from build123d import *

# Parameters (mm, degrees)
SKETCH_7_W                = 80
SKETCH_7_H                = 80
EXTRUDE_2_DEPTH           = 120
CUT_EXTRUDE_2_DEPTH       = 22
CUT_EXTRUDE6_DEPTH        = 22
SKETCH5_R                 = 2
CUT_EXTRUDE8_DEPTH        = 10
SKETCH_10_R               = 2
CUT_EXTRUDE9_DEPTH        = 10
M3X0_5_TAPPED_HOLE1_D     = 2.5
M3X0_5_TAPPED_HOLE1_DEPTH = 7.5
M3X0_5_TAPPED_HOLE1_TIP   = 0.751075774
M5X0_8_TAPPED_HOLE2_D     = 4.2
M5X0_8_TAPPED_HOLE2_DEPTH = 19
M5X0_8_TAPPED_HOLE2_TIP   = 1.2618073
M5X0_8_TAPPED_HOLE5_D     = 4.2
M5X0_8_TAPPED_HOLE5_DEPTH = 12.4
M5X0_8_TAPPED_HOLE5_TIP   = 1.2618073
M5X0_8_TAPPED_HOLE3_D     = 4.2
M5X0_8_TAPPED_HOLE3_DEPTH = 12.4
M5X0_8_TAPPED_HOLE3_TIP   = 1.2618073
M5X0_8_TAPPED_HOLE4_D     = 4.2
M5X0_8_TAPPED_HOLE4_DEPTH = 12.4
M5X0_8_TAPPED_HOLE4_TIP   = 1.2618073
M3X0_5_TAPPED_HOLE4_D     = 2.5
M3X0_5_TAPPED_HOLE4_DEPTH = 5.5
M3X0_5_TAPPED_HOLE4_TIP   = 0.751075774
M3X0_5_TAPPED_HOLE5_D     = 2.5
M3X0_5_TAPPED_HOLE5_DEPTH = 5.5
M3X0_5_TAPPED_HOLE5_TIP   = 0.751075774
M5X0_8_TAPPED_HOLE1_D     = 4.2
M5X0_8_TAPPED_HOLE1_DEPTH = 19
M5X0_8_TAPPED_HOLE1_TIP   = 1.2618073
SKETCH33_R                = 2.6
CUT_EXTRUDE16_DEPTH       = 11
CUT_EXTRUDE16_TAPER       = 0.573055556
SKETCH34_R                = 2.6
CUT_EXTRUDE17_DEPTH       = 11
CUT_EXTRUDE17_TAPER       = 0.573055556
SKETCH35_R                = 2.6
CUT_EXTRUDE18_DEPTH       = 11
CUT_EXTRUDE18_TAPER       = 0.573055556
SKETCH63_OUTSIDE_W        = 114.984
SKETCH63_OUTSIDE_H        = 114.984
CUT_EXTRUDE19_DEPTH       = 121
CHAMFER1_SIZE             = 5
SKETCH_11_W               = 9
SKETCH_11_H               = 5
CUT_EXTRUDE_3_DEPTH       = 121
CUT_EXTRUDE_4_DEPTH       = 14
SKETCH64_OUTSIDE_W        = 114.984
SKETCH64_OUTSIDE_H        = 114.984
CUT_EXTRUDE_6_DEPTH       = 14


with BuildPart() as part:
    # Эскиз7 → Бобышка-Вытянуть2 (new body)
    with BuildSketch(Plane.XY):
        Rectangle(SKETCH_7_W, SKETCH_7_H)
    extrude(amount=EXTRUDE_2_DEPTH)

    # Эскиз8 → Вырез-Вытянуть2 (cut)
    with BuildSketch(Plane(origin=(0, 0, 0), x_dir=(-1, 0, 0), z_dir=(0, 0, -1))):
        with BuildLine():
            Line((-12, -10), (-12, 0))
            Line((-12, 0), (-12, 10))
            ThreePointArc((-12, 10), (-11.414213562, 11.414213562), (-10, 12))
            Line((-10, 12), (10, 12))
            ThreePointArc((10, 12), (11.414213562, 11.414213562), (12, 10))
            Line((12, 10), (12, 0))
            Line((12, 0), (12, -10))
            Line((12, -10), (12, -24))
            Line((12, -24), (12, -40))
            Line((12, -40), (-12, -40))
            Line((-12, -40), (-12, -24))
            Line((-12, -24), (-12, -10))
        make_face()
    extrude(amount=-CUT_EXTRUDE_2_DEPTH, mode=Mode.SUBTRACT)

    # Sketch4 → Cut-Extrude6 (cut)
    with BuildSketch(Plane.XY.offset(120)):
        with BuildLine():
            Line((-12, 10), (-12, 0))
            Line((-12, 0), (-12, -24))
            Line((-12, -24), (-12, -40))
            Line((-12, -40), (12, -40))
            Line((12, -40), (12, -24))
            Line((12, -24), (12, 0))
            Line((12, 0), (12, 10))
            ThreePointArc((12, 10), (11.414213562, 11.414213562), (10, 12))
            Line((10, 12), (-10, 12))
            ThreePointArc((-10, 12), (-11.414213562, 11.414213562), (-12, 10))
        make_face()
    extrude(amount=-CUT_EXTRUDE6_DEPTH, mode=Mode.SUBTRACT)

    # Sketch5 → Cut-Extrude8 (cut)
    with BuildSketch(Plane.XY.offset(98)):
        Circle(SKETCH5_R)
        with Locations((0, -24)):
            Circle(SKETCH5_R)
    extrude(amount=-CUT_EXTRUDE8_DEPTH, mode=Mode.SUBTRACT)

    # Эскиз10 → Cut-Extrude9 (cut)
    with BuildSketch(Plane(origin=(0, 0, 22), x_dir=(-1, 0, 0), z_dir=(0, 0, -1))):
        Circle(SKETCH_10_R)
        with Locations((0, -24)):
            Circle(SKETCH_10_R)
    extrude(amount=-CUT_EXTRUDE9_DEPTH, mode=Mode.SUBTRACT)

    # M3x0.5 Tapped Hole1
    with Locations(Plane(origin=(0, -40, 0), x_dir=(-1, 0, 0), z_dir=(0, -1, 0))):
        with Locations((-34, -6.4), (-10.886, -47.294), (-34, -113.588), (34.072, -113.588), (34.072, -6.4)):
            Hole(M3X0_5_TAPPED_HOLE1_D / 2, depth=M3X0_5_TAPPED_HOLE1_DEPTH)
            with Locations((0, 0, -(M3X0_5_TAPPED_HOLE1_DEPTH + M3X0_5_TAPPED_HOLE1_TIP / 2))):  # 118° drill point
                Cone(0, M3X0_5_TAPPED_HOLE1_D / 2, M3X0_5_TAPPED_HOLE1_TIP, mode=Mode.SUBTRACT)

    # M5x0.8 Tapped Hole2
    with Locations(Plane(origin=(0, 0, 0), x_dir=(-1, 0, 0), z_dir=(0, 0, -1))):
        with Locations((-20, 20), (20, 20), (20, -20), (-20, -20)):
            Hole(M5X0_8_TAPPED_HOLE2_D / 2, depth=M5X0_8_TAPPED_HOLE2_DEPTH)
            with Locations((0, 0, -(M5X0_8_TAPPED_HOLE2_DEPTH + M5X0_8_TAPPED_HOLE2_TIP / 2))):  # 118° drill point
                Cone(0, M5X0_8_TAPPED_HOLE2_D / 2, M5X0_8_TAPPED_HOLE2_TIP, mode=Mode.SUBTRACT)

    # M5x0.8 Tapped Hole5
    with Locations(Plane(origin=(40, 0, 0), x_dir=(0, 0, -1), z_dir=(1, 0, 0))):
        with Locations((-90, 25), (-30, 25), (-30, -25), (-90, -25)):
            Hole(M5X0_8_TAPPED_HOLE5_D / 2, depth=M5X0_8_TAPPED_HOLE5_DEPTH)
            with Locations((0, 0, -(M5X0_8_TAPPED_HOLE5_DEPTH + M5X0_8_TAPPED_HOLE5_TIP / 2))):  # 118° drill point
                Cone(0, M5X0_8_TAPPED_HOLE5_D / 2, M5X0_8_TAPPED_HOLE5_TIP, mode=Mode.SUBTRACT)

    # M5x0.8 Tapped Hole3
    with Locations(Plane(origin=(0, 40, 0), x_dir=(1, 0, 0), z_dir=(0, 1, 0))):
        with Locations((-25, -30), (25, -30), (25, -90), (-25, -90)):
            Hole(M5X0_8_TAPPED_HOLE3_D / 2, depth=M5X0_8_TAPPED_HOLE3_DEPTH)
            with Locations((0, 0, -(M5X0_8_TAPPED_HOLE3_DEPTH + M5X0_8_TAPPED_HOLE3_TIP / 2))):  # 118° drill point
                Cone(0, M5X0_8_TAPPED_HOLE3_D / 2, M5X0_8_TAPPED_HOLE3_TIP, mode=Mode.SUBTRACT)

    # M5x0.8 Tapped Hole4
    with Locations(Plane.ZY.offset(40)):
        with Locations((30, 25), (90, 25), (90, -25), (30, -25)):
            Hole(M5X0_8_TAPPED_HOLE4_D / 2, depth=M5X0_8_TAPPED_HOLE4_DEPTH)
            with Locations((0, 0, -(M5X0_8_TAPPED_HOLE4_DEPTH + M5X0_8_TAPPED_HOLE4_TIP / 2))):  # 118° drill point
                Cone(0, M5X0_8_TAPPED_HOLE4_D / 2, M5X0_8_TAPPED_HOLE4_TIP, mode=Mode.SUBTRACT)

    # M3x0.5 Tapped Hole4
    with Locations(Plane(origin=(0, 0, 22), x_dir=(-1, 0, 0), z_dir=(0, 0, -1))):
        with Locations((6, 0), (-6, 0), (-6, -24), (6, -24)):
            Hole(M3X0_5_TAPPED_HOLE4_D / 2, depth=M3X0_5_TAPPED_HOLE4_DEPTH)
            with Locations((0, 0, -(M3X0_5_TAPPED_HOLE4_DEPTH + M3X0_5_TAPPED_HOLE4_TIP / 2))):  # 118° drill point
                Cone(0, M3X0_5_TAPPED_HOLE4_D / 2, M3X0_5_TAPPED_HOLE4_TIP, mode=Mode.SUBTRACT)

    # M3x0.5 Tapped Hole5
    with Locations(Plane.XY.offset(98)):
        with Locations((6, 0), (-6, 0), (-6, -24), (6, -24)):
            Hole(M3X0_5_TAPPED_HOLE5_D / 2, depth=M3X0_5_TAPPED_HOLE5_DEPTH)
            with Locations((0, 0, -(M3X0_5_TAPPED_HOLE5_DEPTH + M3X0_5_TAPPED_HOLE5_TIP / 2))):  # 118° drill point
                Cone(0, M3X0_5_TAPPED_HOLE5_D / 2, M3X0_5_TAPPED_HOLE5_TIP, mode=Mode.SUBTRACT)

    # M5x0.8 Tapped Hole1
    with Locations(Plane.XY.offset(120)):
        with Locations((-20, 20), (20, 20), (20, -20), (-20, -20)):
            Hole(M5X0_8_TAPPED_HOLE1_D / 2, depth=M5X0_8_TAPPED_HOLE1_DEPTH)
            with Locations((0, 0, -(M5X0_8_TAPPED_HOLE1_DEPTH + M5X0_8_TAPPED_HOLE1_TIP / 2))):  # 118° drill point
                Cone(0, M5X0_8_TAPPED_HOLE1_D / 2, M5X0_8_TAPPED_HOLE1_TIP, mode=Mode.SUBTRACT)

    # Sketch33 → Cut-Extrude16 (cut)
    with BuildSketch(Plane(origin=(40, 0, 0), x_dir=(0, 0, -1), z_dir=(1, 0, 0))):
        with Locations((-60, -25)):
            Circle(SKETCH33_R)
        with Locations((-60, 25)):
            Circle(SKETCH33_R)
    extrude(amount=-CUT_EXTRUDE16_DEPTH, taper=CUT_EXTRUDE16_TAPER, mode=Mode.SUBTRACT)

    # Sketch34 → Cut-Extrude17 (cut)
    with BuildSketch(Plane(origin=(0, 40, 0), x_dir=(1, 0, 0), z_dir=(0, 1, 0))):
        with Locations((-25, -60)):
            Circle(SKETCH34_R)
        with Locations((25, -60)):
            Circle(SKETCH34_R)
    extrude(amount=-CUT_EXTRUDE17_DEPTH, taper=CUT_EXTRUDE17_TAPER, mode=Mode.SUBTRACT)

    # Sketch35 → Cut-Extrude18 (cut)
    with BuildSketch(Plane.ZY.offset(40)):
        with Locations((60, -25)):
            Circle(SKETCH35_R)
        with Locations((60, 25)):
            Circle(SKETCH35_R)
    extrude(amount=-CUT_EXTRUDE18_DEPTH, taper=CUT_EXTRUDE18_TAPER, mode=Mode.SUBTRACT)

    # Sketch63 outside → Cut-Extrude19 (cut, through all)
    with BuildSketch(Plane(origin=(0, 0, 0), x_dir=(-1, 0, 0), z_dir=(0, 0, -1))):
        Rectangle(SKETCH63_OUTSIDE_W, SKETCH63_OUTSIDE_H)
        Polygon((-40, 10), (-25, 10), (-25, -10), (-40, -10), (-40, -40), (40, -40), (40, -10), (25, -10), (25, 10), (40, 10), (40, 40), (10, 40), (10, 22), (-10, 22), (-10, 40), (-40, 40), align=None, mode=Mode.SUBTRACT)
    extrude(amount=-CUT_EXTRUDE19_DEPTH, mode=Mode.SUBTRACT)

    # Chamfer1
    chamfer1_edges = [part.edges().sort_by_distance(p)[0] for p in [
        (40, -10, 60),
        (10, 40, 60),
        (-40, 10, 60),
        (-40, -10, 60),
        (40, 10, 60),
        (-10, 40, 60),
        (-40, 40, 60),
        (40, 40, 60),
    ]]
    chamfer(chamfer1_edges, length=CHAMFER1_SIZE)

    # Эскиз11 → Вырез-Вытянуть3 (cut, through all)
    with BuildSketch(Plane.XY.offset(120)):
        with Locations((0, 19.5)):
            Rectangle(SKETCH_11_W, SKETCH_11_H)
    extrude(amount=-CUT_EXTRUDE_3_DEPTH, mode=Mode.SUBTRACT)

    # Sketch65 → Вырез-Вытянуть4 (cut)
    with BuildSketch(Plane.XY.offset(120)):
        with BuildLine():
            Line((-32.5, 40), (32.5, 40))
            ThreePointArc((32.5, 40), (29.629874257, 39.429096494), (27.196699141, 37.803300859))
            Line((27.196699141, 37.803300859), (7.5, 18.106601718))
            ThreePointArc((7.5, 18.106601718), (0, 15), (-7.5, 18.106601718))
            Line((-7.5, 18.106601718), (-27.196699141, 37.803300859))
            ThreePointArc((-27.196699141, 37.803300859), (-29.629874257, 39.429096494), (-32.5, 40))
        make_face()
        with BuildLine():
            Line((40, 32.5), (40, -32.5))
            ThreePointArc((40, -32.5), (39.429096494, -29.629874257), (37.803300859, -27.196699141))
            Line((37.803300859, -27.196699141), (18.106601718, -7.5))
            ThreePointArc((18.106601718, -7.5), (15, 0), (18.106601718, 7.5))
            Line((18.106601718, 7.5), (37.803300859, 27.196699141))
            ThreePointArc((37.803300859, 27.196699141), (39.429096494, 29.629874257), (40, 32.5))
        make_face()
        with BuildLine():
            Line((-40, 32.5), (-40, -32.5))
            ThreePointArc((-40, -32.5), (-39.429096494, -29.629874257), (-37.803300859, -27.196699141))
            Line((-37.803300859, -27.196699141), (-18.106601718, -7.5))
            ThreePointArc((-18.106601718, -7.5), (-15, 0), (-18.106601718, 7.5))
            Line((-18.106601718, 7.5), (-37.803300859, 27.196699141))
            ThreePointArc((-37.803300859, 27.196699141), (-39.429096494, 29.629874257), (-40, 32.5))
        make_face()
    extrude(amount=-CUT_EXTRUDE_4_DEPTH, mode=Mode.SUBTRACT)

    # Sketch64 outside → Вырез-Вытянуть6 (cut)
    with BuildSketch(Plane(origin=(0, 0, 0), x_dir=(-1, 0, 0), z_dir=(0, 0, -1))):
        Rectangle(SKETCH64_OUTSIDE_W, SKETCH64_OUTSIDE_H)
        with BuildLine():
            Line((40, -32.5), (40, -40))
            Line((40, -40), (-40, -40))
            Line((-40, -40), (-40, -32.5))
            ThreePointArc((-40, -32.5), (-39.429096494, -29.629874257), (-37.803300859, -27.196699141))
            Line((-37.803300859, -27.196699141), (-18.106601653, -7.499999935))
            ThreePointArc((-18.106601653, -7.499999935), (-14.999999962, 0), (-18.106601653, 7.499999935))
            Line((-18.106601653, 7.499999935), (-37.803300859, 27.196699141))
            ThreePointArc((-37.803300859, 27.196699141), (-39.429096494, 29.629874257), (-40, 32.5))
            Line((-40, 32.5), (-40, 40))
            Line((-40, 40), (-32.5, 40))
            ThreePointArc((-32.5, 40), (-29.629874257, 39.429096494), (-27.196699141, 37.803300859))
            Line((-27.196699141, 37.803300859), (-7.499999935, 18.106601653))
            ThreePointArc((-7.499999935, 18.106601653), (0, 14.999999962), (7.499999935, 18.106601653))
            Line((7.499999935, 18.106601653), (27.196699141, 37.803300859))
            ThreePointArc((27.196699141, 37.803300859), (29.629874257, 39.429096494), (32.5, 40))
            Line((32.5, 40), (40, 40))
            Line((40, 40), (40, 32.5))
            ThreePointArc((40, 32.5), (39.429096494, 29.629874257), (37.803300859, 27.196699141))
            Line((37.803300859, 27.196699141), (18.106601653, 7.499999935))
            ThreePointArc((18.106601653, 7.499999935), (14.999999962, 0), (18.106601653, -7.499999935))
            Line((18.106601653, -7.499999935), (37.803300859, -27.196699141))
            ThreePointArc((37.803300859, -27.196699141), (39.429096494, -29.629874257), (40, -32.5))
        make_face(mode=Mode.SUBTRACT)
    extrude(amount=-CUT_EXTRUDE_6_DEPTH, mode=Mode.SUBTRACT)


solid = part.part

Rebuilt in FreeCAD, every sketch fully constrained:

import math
import FreeCAD as App
import Part
import Sketcher

V = App.Vector
Q = App.Units.Quantity


def edges_at(feature, points):
    """Names of the edges that pass closest to the given points."""
    edges = feature.Shape.Edges
    near = lambda p: min(range(len(edges)), key=lambda i: edges[i].distToShape(Part.Vertex(*p))[0])
    return sorted({f"Edge{near(p) + 1}" for p in points})


def add_polygon(sketch, points):
    """Adds a closed chain of lines whose ends are joined by coincident constraints."""
    first, n = sketch.GeometryCount, len(points)
    for a, b in zip(points, points[1:] + points[:1]):
        sketch.addGeometry(Part.LineSegment(App.Vector(*a, 0), App.Vector(*b, 0)), False)
    for i in range(n):
        sketch.addConstraint(Sketcher.Constraint("Coincident", first + i, 2, first + (i + 1) % n, 1))

doc = App.newDocument("Part")
body = doc.addObject("PartDesign::Body", "Body")

sketch1 = body.newObject("Sketcher::SketchObject", "Sketch")
sketch1.AttachmentSupport = (doc.getObject("XY_Plane"), [""])
sketch1.MapMode = "FlatFace"
add_polygon(sketch1, [(-40, 40), (-40, -40), (40, -40), (40, 40)])
sketch1.addConstraint([
    Sketcher.Constraint("Vertical", 0),
    Sketcher.Constraint("Horizontal", 1),
    Sketcher.Constraint("Vertical", 2),
    Sketcher.Constraint("Horizontal", 3),
    Sketcher.Constraint("Symmetric", 0, 2, 2, 2, -1, 1),
    Sketcher.Constraint("Equal", 3, 0),
    Sketcher.Constraint("DistanceX", 1, 1, 1, 2, Q("80 mm")),
])
pad1 = body.newObject("PartDesign::Pad", "Pad")
pad1.Profile = sketch1
pad1.Length = 120

sketch2 = body.newObject("Sketcher::SketchObject", "Sketch001")
sketch2.AttachmentSupport = (doc.getObject("XY_Plane"), [""])
sketch2.MapMode = "FlatFace"
sketch2.addGeometry([
    Part.ArcOfCircle(Part.Circle(V(10, 10, 0), V(0, 0, 1), 2), math.radians(0), math.radians(90)),
    Part.LineSegment(V(12, 10, 0), V(12, -40, 0)),
    Part.LineSegment(V(12, -40, 0), V(-12, -40, 0)),
    Part.LineSegment(V(-12, -40, 0), V(-12, 10, 0)),
    Part.ArcOfCircle(Part.Circle(V(-10, 10, 0), V(0, 0, 1), 2), math.radians(90), math.radians(180)),
    Part.LineSegment(V(-10, 12, 0), V(10, 12, 0)),
], False)
sketch2.addConstraint([
    Sketcher.Constraint("Tangent", 0, 1, 1, 1),
    Sketcher.Constraint("Coincident", 1, 2, 2, 1),
    Sketcher.Constraint("Coincident", 2, 2, 3, 1),
    Sketcher.Constraint("Tangent", 3, 2, 4, 2),
    Sketcher.Constraint("Tangent", 4, 1, 5, 1),
    Sketcher.Constraint("Tangent", 5, 2, 0, 2),
    Sketcher.Constraint("Vertical", 1),
    Sketcher.Constraint("Horizontal", 2),
    Sketcher.Constraint("Vertical", 3),
    Sketcher.Constraint("Horizontal", 5),
    Sketcher.Constraint("Equal", 0, 4),
    Sketcher.Constraint("Radius", 0, Q("2 mm")),
    Sketcher.Constraint("DistanceX", 2, 2, 2, 1, Q("24 mm")),
    Sketcher.Constraint("DistanceY", 1, 2, 1, 1, Q("50 mm")),
    Sketcher.Constraint("DistanceX", -1, 1, 0, 3, Q("10 mm")),
    Sketcher.Constraint("DistanceY", -1, 1, 0, 3, Q("10 mm")),
])
pocket1 = body.newObject("PartDesign::Pocket", "Pocket")
pocket1.Profile = sketch2
pocket1.Length = 22
pocket1.Reversed = True

sketch3 = body.newObject("Sketcher::SketchObject", "Sketch002")
sketch3.AttachmentSupport = (doc.getObject("XY_Plane"), [""])
sketch3.MapMode = "FlatFace"
sketch3.AttachmentOffset = App.Placement(V(0, 0, 120), App.Rotation())
sketch3.addGeometry([
    Part.LineSegment(V(-12, 10, 0), V(-12, -40, 0)),
    Part.LineSegment(V(-12, -40, 0), V(12, -40, 0)),
    Part.LineSegment(V(12, -40, 0), V(12, 10, 0)),
    Part.ArcOfCircle(Part.Circle(V(10, 10, 0), V(0, 0, 1), 2), math.radians(0), math.radians(90)),
    Part.LineSegment(V(10, 12, 0), V(-10, 12, 0)),
    Part.ArcOfCircle(Part.Circle(V(-10, 10, 0), V(0, 0, 1), 2), math.radians(90), math.radians(180)),
], False)
sketch3.addConstraint([
    Sketcher.Constraint("Coincident", 0, 2, 1, 1),
    Sketcher.Constraint("Coincident", 1, 2, 2, 1),
    Sketcher.Constraint("Tangent", 2, 2, 3, 1),
    Sketcher.Constraint("Tangent", 3, 2, 4, 1),
    Sketcher.Constraint("Tangent", 4, 2, 5, 1),
    Sketcher.Constraint("Tangent", 5, 2, 0, 1),
    Sketcher.Constraint("Vertical", 0),
    Sketcher.Constraint("Horizontal", 1),
    Sketcher.Constraint("Vertical", 2),
    Sketcher.Constraint("Horizontal", 4),
    Sketcher.Constraint("Equal", 3, 5),
    Sketcher.Constraint("Radius", 3, Q("2 mm")),
    Sketcher.Constraint("DistanceX", 1, 1, 1, 2, Q("24 mm")),
    Sketcher.Constraint("DistanceY", 0, 2, 0, 1, Q("50 mm")),
    Sketcher.Constraint("DistanceX", -1, 1, 3, 3, Q("10 mm")),
    Sketcher.Constraint("DistanceY", -1, 1, 3, 3, Q("10 mm")),
])
pocket2 = body.newObject("PartDesign::Pocket", "Pocket001")
pocket2.Profile = sketch3
pocket2.Length = 22

sketch4 = body.newObject("Sketcher::SketchObject", "Sketch003")
sketch4.AttachmentSupport = (doc.getObject("XY_Plane"), [""])
sketch4.MapMode = "FlatFace"
sketch4.AttachmentOffset = App.Placement(V(0, 0, 98), App.Rotation())
sketch4.addGeometry([
    Part.Circle(V(0, 0, 0), V(0, 0, 1), 2),
    Part.Circle(V(0, -24, 0), V(0, 0, 1), 2),
], False)
sketch4.addConstraint([
    Sketcher.Constraint("Coincident", 0, 3, -1, 1),
    Sketcher.Constraint("Equal", 0, 1),
    Sketcher.Constraint("PointOnObject", 1, 3, -2),
    Sketcher.Constraint("Diameter", 0, Q("4 mm")),
    Sketcher.Constraint("DistanceY", 1, 3, -1, 1, Q("24 mm")),
])
pocket3 = body.newObject("PartDesign::Pocket", "Pocket002")
pocket3.Profile = sketch4
pocket3.Length = 10

sketch5 = body.newObject("Sketcher::SketchObject", "Sketch004")
sketch5.AttachmentSupport = (doc.getObject("XY_Plane"), [""])
sketch5.MapMode = "FlatFace"
sketch5.AttachmentOffset = App.Placement(V(0, 0, 22), App.Rotation())
sketch5.addGeometry([
    Part.Circle(V(0, 0, 0), V(0, 0, 1), 2),
    Part.Circle(V(0, -24, 0), V(0, 0, 1), 2),
], False)
sketch5.addConstraint([
    Sketcher.Constraint("Coincident", 0, 3, -1, 1),
    Sketcher.Constraint("Equal", 0, 1),
    Sketcher.Constraint("PointOnObject", 1, 3, -2),
    Sketcher.Constraint("Diameter", 0, Q("4 mm")),
    Sketcher.Constraint("DistanceY", 1, 3, -1, 1, Q("24 mm")),
])
pocket4 = body.newObject("PartDesign::Pocket", "Pocket003")
pocket4.Profile = sketch5
pocket4.Length = 10
pocket4.Reversed = True

sketch6 = body.newObject("Sketcher::SketchObject", "Sketch005")
sketch6.AttachmentSupport = (doc.getObject("XZ_Plane"), [""])
sketch6.MapMode = "FlatFace"
sketch6.AttachmentOffset = App.Placement(V(0, 0, 40), App.Rotation())
sketch6.addGeometry([
    Part.Circle(V(34, 6.4, 0), V(0, 0, 1), 1.2),
    Part.Circle(V(10.9, 47.3, 0), V(0, 0, 1), 1.2),
    Part.Circle(V(34, 113.6, 0), V(0, 0, 1), 1.2),
    Part.Circle(V(-34.1, 113.6, 0), V(0, 0, 1), 1.2),
    Part.Circle(V(-34.1, 6.4, 0), V(0, 0, 1), 1.2),
], False)
sketch6.addConstraint([
    Sketcher.Constraint("Equal", 0, 1),
    Sketcher.Constraint("Equal", 1, 2),
    Sketcher.Constraint("Equal", 2, 3),
    Sketcher.Constraint("Equal", 3, 4),
    Sketcher.Constraint("Horizontal", 2, 3, 3, 3),
    Sketcher.Constraint("Horizontal", 0, 3, 4, 3),
    Sketcher.Constraint("Vertical", 0, 3, 2, 3),
    Sketcher.Constraint("Vertical", 3, 3, 4, 3),
    Sketcher.Constraint("Diameter", 0, Q("2.5 mm")),
    Sketcher.Constraint("DistanceX", -1, 1, 0, 3, Q("34 mm")),
    Sketcher.Constraint("DistanceY", -1, 1, 0, 3, Q("6.4 mm")),
    Sketcher.Constraint("DistanceX", -1, 1, 1, 3, Q("10.886 mm")),
    Sketcher.Constraint("DistanceY", -1, 1, 1, 3, Q("47.294 mm")),
    Sketcher.Constraint("DistanceY", -1, 1, 2, 3, Q("113.588 mm")),
    Sketcher.Constraint("DistanceX", 3, 3, -1, 1, Q("34.072 mm")),
])
doc.recompute()
hole = body.newObject("PartDesign::Hole", "Hole")
hole.Profile = sketch6
hole.ThreadType = "None"
hole.Diameter = 2.5
hole.DepthType = "Dimension"
hole.Depth = 7.5
hole.DrillPoint = "Angled"
hole.DrillPointAngle = 118

sketch7 = body.newObject("Sketcher::SketchObject", "Sketch006")
sketch7.AttachmentSupport = (doc.getObject("XY_Plane"), [""])
sketch7.MapMode = "FlatFace"
sketch7.addGeometry([
    Part.Circle(V(20, 20, 0), V(0, 0, 1), 2.1),
    Part.Circle(V(-20, 20, 0), V(0, 0, 1), 2.1),
    Part.Circle(V(-20, -20, 0), V(0, 0, 1), 2.1),
    Part.Circle(V(20, -20, 0), V(0, 0, 1), 2.1),
], False)
sketch7.addConstraint([
    Sketcher.Constraint("Equal", 0, 1),
    Sketcher.Constraint("Equal", 1, 2),
    Sketcher.Constraint("Equal", 2, 3),
    Sketcher.Constraint("Symmetric", 0, 3, 2, 3, -1, 1),
    Sketcher.Constraint("Symmetric", 1, 3, 3, 3, -1, 1),
    Sketcher.Constraint("Symmetric", 0, 3, 1, 3, -2),
    Sketcher.Constraint("Diameter", 0, Q("4.2 mm")),
    Sketcher.Constraint("DistanceX", -1, 1, 0, 3, Q("20 mm")),
    Sketcher.Constraint("DistanceY", -1, 1, 0, 3, Q("20 mm")),
])
doc.recompute()
hole2 = body.newObject("PartDesign::Hole", "Hole001")
hole2.Profile = sketch7
hole2.ThreadType = "None"
hole2.Diameter = 4.2
hole2.DepthType = "Dimension"
hole2.Depth = 19
hole2.DrillPoint = "Angled"
hole2.DrillPointAngle = 118
hole2.Reversed = True

sketch8 = body.newObject("Sketcher::SketchObject", "Sketch007")
sketch8.AttachmentSupport = (doc.getObject("YZ_Plane"), [""])
sketch8.MapMode = "FlatFace"
sketch8.AttachmentOffset = App.Placement(V(0, 0, 40), App.Rotation())
sketch8.addGeometry([
    Part.Circle(V(25, 90, 0), V(0, 0, 1), 2.1),
    Part.Circle(V(25, 30, 0), V(0, 0, 1), 2.1),
    Part.Circle(V(-25, 30, 0), V(0, 0, 1), 2.1),
    Part.Circle(V(-25, 90, 0), V(0, 0, 1), 2.1),
], False)
sketch8.addConstraint([
    Sketcher.Constraint("Equal", 0, 1),
    Sketcher.Constraint("Equal", 1, 2),
    Sketcher.Constraint("Equal", 2, 3),
    Sketcher.Constraint("Symmetric", 1, 3, 2, 3, -2),
    Sketcher.Constraint("Symmetric", 0, 3, 3, 3, -2),
    Sketcher.Constraint("Vertical", 0, 3, 1, 3),
    Sketcher.Constraint("Diameter", 0, Q("4.2 mm")),
    Sketcher.Constraint("DistanceX", -1, 1, 0, 3, Q("25 mm")),
    Sketcher.Constraint("DistanceY", -1, 1, 0, 3, Q("90 mm")),
    Sketcher.Constraint("DistanceY", -1, 1, 1, 3, Q("30 mm")),
])
doc.recompute()
hole3 = body.newObject("PartDesign::Hole", "Hole002")
hole3.Profile = sketch8
hole3.ThreadType = "None"
hole3.Diameter = 4.2
hole3.DepthType = "Dimension"
hole3.Depth = 12.4
hole3.DrillPoint = "Angled"
hole3.DrillPointAngle = 118

sketch9 = body.newObject("Sketcher::SketchObject", "Sketch008")
sketch9.AttachmentSupport = (doc.getObject("XZ_Plane"), [""])
sketch9.MapMode = "FlatFace"
sketch9.AttachmentOffset = App.Placement(V(0, 0, -40), App.Rotation())
sketch9.addGeometry([
    Part.Circle(V(-25, 30, 0), V(0, 0, 1), 2.1),
    Part.Circle(V(25, 30, 0), V(0, 0, 1), 2.1),
    Part.Circle(V(25, 90, 0), V(0, 0, 1), 2.1),
    Part.Circle(V(-25, 90, 0), V(0, 0, 1), 2.1),
], False)
sketch9.addConstraint([
    Sketcher.Constraint("Equal", 0, 1),
    Sketcher.Constraint("Equal", 1, 2),
    Sketcher.Constraint("Equal", 2, 3),
    Sketcher.Constraint("Symmetric", 0, 3, 1, 3, -2),
    Sketcher.Constraint("Symmetric", 2, 3, 3, 3, -2),
    Sketcher.Constraint("Vertical", 1, 3, 2, 3),
    Sketcher.Constraint("Diameter", 0, Q("4.2 mm")),
    Sketcher.Constraint("DistanceX", 0, 3, -1, 1, Q("25 mm")),
    Sketcher.Constraint("DistanceY", -1, 1, 0, 3, Q("30 mm")),
    Sketcher.Constraint("DistanceY", -1, 1, 2, 3, Q("90 mm")),
])
doc.recompute()
hole4 = body.newObject("PartDesign::Hole", "Hole003")
hole4.Profile = sketch9
hole4.ThreadType = "None"
hole4.Diameter = 4.2
hole4.DepthType = "Dimension"
hole4.Depth = 12.4
hole4.DrillPoint = "Angled"
hole4.DrillPointAngle = 118
hole4.Reversed = True

sketch10 = body.newObject("Sketcher::SketchObject", "Sketch009")
sketch10.AttachmentSupport = (doc.getObject("YZ_Plane"), [""])
sketch10.MapMode = "FlatFace"
sketch10.AttachmentOffset = App.Placement(V(0, 0, -40), App.Rotation())
sketch10.addGeometry([
    Part.Circle(V(25, 30, 0), V(0, 0, 1), 2.1),
    Part.Circle(V(25, 90, 0), V(0, 0, 1), 2.1),
    Part.Circle(V(-25, 90, 0), V(0, 0, 1), 2.1),
    Part.Circle(V(-25, 30, 0), V(0, 0, 1), 2.1),
], False)
sketch10.addConstraint([
    Sketcher.Constraint("Equal", 0, 1),
    Sketcher.Constraint("Equal", 1, 2),
    Sketcher.Constraint("Equal", 2, 3),
    Sketcher.Constraint("Symmetric", 1, 3, 2, 3, -2),
    Sketcher.Constraint("Symmetric", 0, 3, 3, 3, -2),
    Sketcher.Constraint("Vertical", 0, 3, 1, 3),
    Sketcher.Constraint("Diameter", 0, Q("4.2 mm")),
    Sketcher.Constraint("DistanceX", -1, 1, 0, 3, Q("25 mm")),
    Sketcher.Constraint("DistanceY", -1, 1, 0, 3, Q("30 mm")),
    Sketcher.Constraint("DistanceY", -1, 1, 1, 3, Q("90 mm")),
])
doc.recompute()
hole5 = body.newObject("PartDesign::Hole", "Hole004")
hole5.Profile = sketch10
hole5.ThreadType = "None"
hole5.Diameter = 4.2
hole5.DepthType = "Dimension"
hole5.Depth = 12.4
hole5.DrillPoint = "Angled"
hole5.DrillPointAngle = 118
hole5.Reversed = True

sketch11 = body.newObject("Sketcher::SketchObject", "Sketch010")
sketch11.AttachmentSupport = (doc.getObject("XY_Plane"), [""])
sketch11.MapMode = "FlatFace"
sketch11.AttachmentOffset = App.Placement(V(0, 0, 22), App.Rotation())
sketch11.addGeometry([
    Part.Circle(V(-6, 0, 0), V(0, 0, 1), 1.2),
    Part.Circle(V(6, 0, 0), V(0, 0, 1), 1.2),
    Part.Circle(V(6, -24, 0), V(0, 0, 1), 1.2),
    Part.Circle(V(-6, -24, 0), V(0, 0, 1), 1.2),
], False)
sketch11.addConstraint([
    Sketcher.Constraint("Equal", 0, 1),
    Sketcher.Constraint("Equal", 1, 2),
    Sketcher.Constraint("Equal", 2, 3),
    Sketcher.Constraint("Symmetric", 0, 3, 1, 3, -1, 1),
    Sketcher.Constraint("Symmetric", 2, 3, 3, 3, -2),
    Sketcher.Constraint("PointOnObject", 0, 3, -1),
    Sketcher.Constraint("Vertical", 1, 3, 2, 3),
    Sketcher.Constraint("Diameter", 0, Q("2.5 mm")),
    Sketcher.Constraint("DistanceX", 0, 3, -1, 1, Q("6 mm")),
    Sketcher.Constraint("DistanceY", 2, 3, -1, 1, Q("24 mm")),
])
doc.recompute()
hole6 = body.newObject("PartDesign::Hole", "Hole005")
hole6.Profile = sketch11
hole6.ThreadType = "None"
hole6.Diameter = 2.5
hole6.DepthType = "Dimension"
hole6.Depth = 5.5
hole6.DrillPoint = "Angled"
hole6.DrillPointAngle = 118
hole6.Reversed = True

sketch12 = body.newObject("Sketcher::SketchObject", "Sketch011")
sketch12.AttachmentSupport = (doc.getObject("XY_Plane"), [""])
sketch12.MapMode = "FlatFace"
sketch12.AttachmentOffset = App.Placement(V(0, 0, 98), App.Rotation())
sketch12.addGeometry([
    Part.Circle(V(6, 0, 0), V(0, 0, 1), 1.2),
    Part.Circle(V(-6, 0, 0), V(0, 0, 1), 1.2),
    Part.Circle(V(-6, -24, 0), V(0, 0, 1), 1.2),
    Part.Circle(V(6, -24, 0), V(0, 0, 1), 1.2),
], False)
sketch12.addConstraint([
    Sketcher.Constraint("Equal", 0, 1),
    Sketcher.Constraint("Equal", 1, 2),
    Sketcher.Constraint("Equal", 2, 3),
    Sketcher.Constraint("Symmetric", 0, 3, 1, 3, -1, 1),
    Sketcher.Constraint("Symmetric", 2, 3, 3, 3, -2),
    Sketcher.Constraint("PointOnObject", 0, 3, -1),
    Sketcher.Constraint("Vertical", 1, 3, 2, 3),
    Sketcher.Constraint("Diameter", 0, Q("2.5 mm")),
    Sketcher.Constraint("DistanceX", -1, 1, 0, 3, Q("6 mm")),
    Sketcher.Constraint("DistanceY", 2, 3, -1, 1, Q("24 mm")),
])
doc.recompute()
hole7 = body.newObject("PartDesign::Hole", "Hole006")
hole7.Profile = sketch12
hole7.ThreadType = "None"
hole7.Diameter = 2.5
hole7.DepthType = "Dimension"
hole7.Depth = 5.5
hole7.DrillPoint = "Angled"
hole7.DrillPointAngle = 118

sketch13 = body.newObject("Sketcher::SketchObject", "Sketch012")
sketch13.AttachmentSupport = (doc.getObject("XY_Plane"), [""])
sketch13.MapMode = "FlatFace"
sketch13.AttachmentOffset = App.Placement(V(0, 0, 120), App.Rotation())
sketch13.addGeometry([
    Part.Circle(V(-20, 20, 0), V(0, 0, 1), 2.1),
    Part.Circle(V(20, 20, 0), V(0, 0, 1), 2.1),
    Part.Circle(V(20, -20, 0), V(0, 0, 1), 2.1),
    Part.Circle(V(-20, -20, 0), V(0, 0, 1), 2.1),
], False)
sketch13.addConstraint([
    Sketcher.Constraint("Equal", 0, 1),
    Sketcher.Constraint("Equal", 1, 2),
    Sketcher.Constraint("Equal", 2, 3),
    Sketcher.Constraint("Symmetric", 0, 3, 2, 3, -1, 1),
    Sketcher.Constraint("Symmetric", 1, 3, 3, 3, -1, 1),
    Sketcher.Constraint("Symmetric", 0, 3, 1, 3, -2),
    Sketcher.Constraint("Diameter", 0, Q("4.2 mm")),
    Sketcher.Constraint("DistanceX", 0, 3, -1, 1, Q("20 mm")),
    Sketcher.Constraint("DistanceY", -1, 1, 0, 3, Q("20 mm")),
])
doc.recompute()
hole8 = body.newObject("PartDesign::Hole", "Hole007")
hole8.Profile = sketch13
hole8.ThreadType = "None"
hole8.Diameter = 4.2
hole8.DepthType = "Dimension"
hole8.Depth = 19
hole8.DrillPoint = "Angled"
hole8.DrillPointAngle = 118

sketch14 = body.newObject("Sketcher::SketchObject", "Sketch013")
sketch14.AttachmentSupport = (doc.getObject("YZ_Plane"), [""])
sketch14.MapMode = "FlatFace"
sketch14.AttachmentOffset = App.Placement(V(0, 0, 40), App.Rotation())
sketch14.addGeometry([
    Part.Circle(V(-25, 60, 0), V(0, 0, 1), 2.6),
    Part.Circle(V(25, 60, 0), V(0, 0, 1), 2.6),
], False)
sketch14.addConstraint([
    Sketcher.Constraint("Equal", 0, 1),
    Sketcher.Constraint("Symmetric", 0, 3, 1, 3, -2),
    Sketcher.Constraint("Diameter", 0, Q("5.2 mm")),
    Sketcher.Constraint("DistanceX", 0, 3, -1, 1, Q("25 mm")),
    Sketcher.Constraint("DistanceY", -1, 1, 0, 3, Q("60 mm")),
])
pocket5 = body.newObject("PartDesign::Pocket", "Pocket004")
pocket5.Profile = sketch14
pocket5.Length = 11
pocket5.TaperAngle = -0.573056

sketch15 = body.newObject("Sketcher::SketchObject", "Sketch014")
sketch15.AttachmentSupport = (doc.getObject("XZ_Plane"), [""])
sketch15.MapMode = "FlatFace"
sketch15.AttachmentOffset = App.Placement(V(0, 0, -40), App.Rotation())
sketch15.addGeometry([
    Part.Circle(V(-25, 60, 0), V(0, 0, 1), 2.6),
    Part.Circle(V(25, 60, 0), V(0, 0, 1), 2.6),
], False)
sketch15.addConstraint([
    Sketcher.Constraint("Equal", 0, 1),
    Sketcher.Constraint("Symmetric", 0, 3, 1, 3, -2),
    Sketcher.Constraint("Diameter", 0, Q("5.2 mm")),
    Sketcher.Constraint("DistanceX", 0, 3, -1, 1, Q("25 mm")),
    Sketcher.Constraint("DistanceY", -1, 1, 0, 3, Q("60 mm")),
])
pocket6 = body.newObject("PartDesign::Pocket", "Pocket005")
pocket6.Profile = sketch15
pocket6.Length = 11
pocket6.Reversed = True
pocket6.TaperAngle = -0.573056

sketch16 = body.newObject("Sketcher::SketchObject", "Sketch015")
sketch16.AttachmentSupport = (doc.getObject("YZ_Plane"), [""])
sketch16.MapMode = "FlatFace"
sketch16.AttachmentOffset = App.Placement(V(0, 0, -40), App.Rotation())
sketch16.addGeometry([
    Part.Circle(V(-25, 60, 0), V(0, 0, 1), 2.6),
    Part.Circle(V(25, 60, 0), V(0, 0, 1), 2.6),
], False)
sketch16.addConstraint([
    Sketcher.Constraint("Equal", 0, 1),
    Sketcher.Constraint("Symmetric", 0, 3, 1, 3, -2),
    Sketcher.Constraint("Diameter", 0, Q("5.2 mm")),
    Sketcher.Constraint("DistanceX", 0, 3, -1, 1, Q("25 mm")),
    Sketcher.Constraint("DistanceY", -1, 1, 0, 3, Q("60 mm")),
])
pocket7 = body.newObject("PartDesign::Pocket", "Pocket006")
pocket7.Profile = sketch16
pocket7.Length = 11
pocket7.Reversed = True
pocket7.TaperAngle = -0.573056

sketch17 = body.newObject("Sketcher::SketchObject", "Sketch016")
sketch17.AttachmentSupport = (doc.getObject("XY_Plane"), [""])
sketch17.MapMode = "FlatFace"
add_polygon(sketch17, [(57, 57), (57, -57), (-57, -57), (-57, 57)])
add_polygon(sketch17, [(25, 10), (40, 10), (40, 40), (10, 40), (10, 22), (-10, 22), (-10, 40), (-40, 40), (-40, 10), (-25, 10), (-25, -10), (-40, -10), (-40, -40), (40, -40), (40, -10), (25, -10)])
sketch17.addConstraint([
    Sketcher.Constraint("Vertical", 0),
    Sketcher.Constraint("Horizontal", 1),
    Sketcher.Constraint("Vertical", 2),
    Sketcher.Constraint("Horizontal", 3),
    Sketcher.Constraint("Horizontal", 4),
    Sketcher.Constraint("Vertical", 5),
    Sketcher.Constraint("Horizontal", 6),
    Sketcher.Constraint("Vertical", 7),
    Sketcher.Constraint("Horizontal", 8),
    Sketcher.Constraint("Vertical", 9),
    Sketcher.Constraint("Horizontal", 10),
    Sketcher.Constraint("Vertical", 11),
    Sketcher.Constraint("Horizontal", 12),
    Sketcher.Constraint("Vertical", 13),
    Sketcher.Constraint("Horizontal", 14),
    Sketcher.Constraint("Vertical", 15),
    Sketcher.Constraint("Horizontal", 16),
    Sketcher.Constraint("Vertical", 17),
    Sketcher.Constraint("Horizontal", 18),
    Sketcher.Constraint("Vertical", 19),
    Sketcher.Constraint("Symmetric", 0, 2, 2, 2, -1, 1),
    Sketcher.Constraint("Symmetric", 4, 2, 14, 2, -1, 1),
    Sketcher.Constraint("Symmetric", 10, 2, 16, 2, -1, 1),
    Sketcher.Constraint("Symmetric", 12, 2, 18, 2, -1, 1),
    Sketcher.Constraint("Symmetric", 6, 2, 9, 2, -2),
    Sketcher.Constraint("Symmetric", 4, 2, 11, 2, -2),
    Sketcher.Constraint("Equal", 3, 0),
    Sketcher.Constraint("Equal", 10, 5),
    Sketcher.Constraint("Equal", 8, 13),
    Sketcher.Constraint("DistanceX", 4, 1, 4, 2, Q("15 mm")),
    Sketcher.Constraint("DistanceX", 6, 2, 6, 1, Q("30 mm")),
    Sketcher.Constraint("DistanceX", 8, 2, 8, 1, Q("20 mm")),
    Sketcher.Constraint("DistanceY", 7, 2, 7, 1, Q("18 mm")),
    Sketcher.Constraint("DistanceX", 1, 2, 1, 1, Q("114.984 mm")),
])
pocket8 = body.newObject("PartDesign::Pocket", "Pocket007")
pocket8.Profile = sketch17
pocket8.Type = "ThroughAll"
pocket8.Reversed = True
doc.recompute()

chamfer = body.newObject("PartDesign::Chamfer", "Chamfer")
chamfer.Base = (pocket8, edges_at(pocket8, [
    (40, -10, 60),
    (10, 40, 60),
    (-40, 10, 60),
    (-40, -10, 60),
    (40, 10, 60),
    (-10, 40, 60),
    (-40, 40, 60),
    (40, 40, 60),
]))
chamfer.Size = 5

sketch18 = body.newObject("Sketcher::SketchObject", "Sketch017")
sketch18.AttachmentSupport = (doc.getObject("XY_Plane"), [""])
sketch18.MapMode = "FlatFace"
sketch18.AttachmentOffset = App.Placement(V(0, 0, 120), App.Rotation())
add_polygon(sketch18, [(-4, 22), (-4, 17), (4, 17), (4, 22)])
sketch18.addConstraint([
    Sketcher.Constraint("Vertical", 0),
    Sketcher.Constraint("Horizontal", 1),
    Sketcher.Constraint("Vertical", 2),
    Sketcher.Constraint("Horizontal", 3),
    Sketcher.Constraint("DistanceX", 1, 1, 1, 2, Q("9 mm")),
    Sketcher.Constraint("DistanceY", 0, 2, 0, 1, Q("5 mm")),
    Sketcher.Constraint("DistanceY", -1, 1, 0, 2, Q("17 mm")),
    Sketcher.Constraint("DistanceX", 0, 2, -1, 1, Q("4.5 mm")),
])
pocket9 = body.newObject("PartDesign::Pocket", "Pocket008")
pocket9.Profile = sketch18
pocket9.Type = "ThroughAll"

sketch19 = body.newObject("Sketcher::SketchObject", "Sketch018")
sketch19.AttachmentSupport = (doc.getObject("XY_Plane"), [""])
sketch19.MapMode = "FlatFace"
sketch19.AttachmentOffset = App.Placement(V(0, 0, 120), App.Rotation())
sketch19.addGeometry([
    Part.LineSegment(V(32, 40, 0), V(-32, 40, 0)),
    Part.ArcOfCircle(Part.Circle(V(-32, 33, 0), V(0, 0, 1), 7), math.radians(45), math.radians(90)),
    Part.LineSegment(V(-27, 38, 0), V(-8, 18, 0)),
    Part.ArcOfCircle(Part.Circle(V(0, 26, 0), V(0, 0, 1), 11), math.radians(-135), math.radians(-45)),
    Part.LineSegment(V(8, 18, 0), V(27, 38, 0)),
    Part.ArcOfCircle(Part.Circle(V(32, 33, 0), V(0, 0, 1), 7), math.radians(90), math.radians(135)),
    Part.LineSegment(V(40, -32, 0), V(40, 32, 0)),
    Part.ArcOfCircle(Part.Circle(V(33, 32, 0), V(0, 0, 1), 7), math.radians(-45), math.radians(0)),
    Part.LineSegment(V(38, 27, 0), V(18, 8, 0)),
    Part.ArcOfCircle(Part.Circle(V(26, 0, 0), V(0, 0, 1), 11), math.radians(135), math.radians(225)),
    Part.LineSegment(V(18, -8, 0), V(38, -27, 0)),
    Part.ArcOfCircle(Part.Circle(V(33, -32, 0), V(0, 0, 1), 7), math.radians(0), math.radians(45)),
    Part.LineSegment(V(-40, 32, 0), V(-40, -32, 0)),
    Part.ArcOfCircle(Part.Circle(V(-33, -32, 0), V(0, 0, 1), 7), math.radians(135), math.radians(180)),
    Part.LineSegment(V(-38, -27, 0), V(-18, -8, 0)),
    Part.ArcOfCircle(Part.Circle(V(-26, 0, 0), V(0, 0, 1), 11), math.radians(-45), math.radians(45)),
    Part.LineSegment(V(-18, 8, 0), V(-38, 27, 0)),
    Part.ArcOfCircle(Part.Circle(V(-33, 32, 0), V(0, 0, 1), 7), math.radians(180), math.radians(225)),
], False)
sketch19.addConstraint([
    Sketcher.Constraint("Tangent", 0, 2, 1, 2),
    Sketcher.Constraint("Tangent", 1, 1, 2, 1),
    Sketcher.Constraint("Tangent", 2, 2, 3, 1),
    Sketcher.Constraint("Tangent", 3, 2, 4, 1),
    Sketcher.Constraint("Tangent", 4, 2, 5, 2),
    Sketcher.Constraint("Tangent", 5, 1, 0, 1),
    Sketcher.Constraint("Tangent", 6, 2, 7, 2),
    Sketcher.Constraint("Tangent", 7, 1, 8, 1),
    Sketcher.Constraint("Tangent", 8, 2, 9, 1),
    Sketcher.Constraint("Tangent", 9, 2, 10, 1),
    Sketcher.Constraint("Tangent", 10, 2, 11, 2),
    Sketcher.Constraint("Tangent", 11, 1, 6, 1),
    Sketcher.Constraint("Tangent", 12, 2, 13, 2),
    Sketcher.Constraint("Tangent", 13, 1, 14, 1),
    Sketcher.Constraint("Tangent", 14, 2, 15, 1),
    Sketcher.Constraint("Tangent", 15, 2, 16, 1),
    Sketcher.Constraint("Tangent", 16, 2, 17, 2),
    Sketcher.Constraint("Tangent", 17, 1, 12, 1),
    Sketcher.Constraint("Horizontal", 0),
    Sketcher.Constraint("Vertical", 6),
    Sketcher.Constraint("Vertical", 12),
    Sketcher.Constraint("Coincident", 7, 3, 5, 3),
    Sketcher.Constraint("Coincident", 17, 3, 1, 3),
    Sketcher.Constraint("Equal", 1, 5),
    Sketcher.Constraint("Equal", 5, 7),
    Sketcher.Constraint("Equal", 3, 9),
    Sketcher.Constraint("Equal", 7, 11),
    Sketcher.Constraint("Equal", 11, 13),
    Sketcher.Constraint("Equal", 9, 15),
    Sketcher.Constraint("Equal", 13, 17),
    Sketcher.Constraint("Symmetric", 1, 3, 11, 3, -1, 1),
    Sketcher.Constraint("Symmetric", 9, 3, 15, 3, -1, 1),
    Sketcher.Constraint("Symmetric", 10, 2, 13, 1, -2),
    Sketcher.Constraint("PointOnObject", 3, 3, -2),
    Sketcher.Constraint("Perpendicular", 2, 4),
    Sketcher.Constraint("Parallel", 4, 8),
    Sketcher.Constraint("Equal", 0, 6),
    Sketcher.Constraint("Radius", 1, Q("7.5 mm")),
    Sketcher.Constraint("DistanceX", 0, 2, 0, 1, Q("65 mm")),
    Sketcher.Constraint("DistanceX", 1, 3, 2, 2, Q("25 mm")),
])
pocket10 = body.newObject("PartDesign::Pocket", "Pocket009")
pocket10.Profile = sketch19
pocket10.Length = 14

sketch20 = body.newObject("Sketcher::SketchObject", "Sketch019")
sketch20.AttachmentSupport = (doc.getObject("XY_Plane"), [""])
sketch20.MapMode = "FlatFace"
add_polygon(sketch20, [(57, 57), (57, -57), (-57, -57), (-57, 57)])
sketch20.addGeometry(Part.ArcOfCircle(Part.Circle(V(-33, -32, 0), V(0, 0, 1), 7), math.radians(135), math.radians(180)), False)
sketch20.addGeometry(Part.LineSegment(V(-40, -32, 0), V(-40, -40, 0)), False)
sketch20.addGeometry(Part.LineSegment(V(-40, -40, 0), V(40, -40, 0)), False)
sketch20.addGeometry(Part.LineSegment(V(40, -40, 0), V(40, -32, 0)), False)
sketch20.addGeometry(Part.ArcOfCircle(Part.Circle(V(33, -32, 0), V(0, 0, 1), 7), math.radians(0), math.radians(45)), False)
sketch20.addGeometry(Part.LineSegment(V(38, -27, 0), V(18, -7, 0)), False)
sketch20.addGeometry(Part.ArcOfCircle(Part.Circle(V(26, 0, 0), V(0, 0, 1), 11), math.radians(135), math.radians(225)), False)
sketch20.addGeometry(Part.LineSegment(V(18, 7, 0), V(38, 27, 0)), False)
sketch20.addGeometry(Part.ArcOfCircle(Part.Circle(V(33, 32, 0), V(0, 0, 1), 7), math.radians(-45), math.radians(0)), False)
sketch20.addGeometry(Part.LineSegment(V(40, 32, 0), V(40, 40, 0)), False)
sketch20.addGeometry(Part.LineSegment(V(40, 40, 0), V(32, 40, 0)), False)
sketch20.addGeometry(Part.ArcOfCircle(Part.Circle(V(32, 33, 0), V(0, 0, 1), 7), math.radians(90), math.radians(135)), False)
sketch20.addGeometry(Part.LineSegment(V(27, 38, 0), V(7, 18, 0)), False)
sketch20.addGeometry(Part.ArcOfCircle(Part.Circle(V(0, 26, 0), V(0, 0, 1), 11), math.radians(-135), math.radians(-45)), False)
sketch20.addGeometry(Part.LineSegment(V(-7, 18, 0), V(-27, 38, 0)), False)
sketch20.addGeometry(Part.ArcOfCircle(Part.Circle(V(-32, 33, 0), V(0, 0, 1), 7), math.radians(45), math.radians(90)), False)
sketch20.addGeometry(Part.LineSegment(V(-32, 40, 0), V(-40, 40, 0)), False)
sketch20.addGeometry(Part.LineSegment(V(-40, 40, 0), V(-40, 32, 0)), False)
sketch20.addGeometry(Part.ArcOfCircle(Part.Circle(V(-33, 32, 0), V(0, 0, 1), 7), math.radians(180), math.radians(225)), False)
sketch20.addGeometry(Part.LineSegment(V(-38, 27, 0), V(-18, 7, 0)), False)
sketch20.addGeometry(Part.ArcOfCircle(Part.Circle(V(-26, 0, 0), V(0, 0, 1), 11), math.radians(-45), math.radians(45)), False)
sketch20.addGeometry(Part.LineSegment(V(-18, -7, 0), V(-38, -27, 0)), False)
sketch20.addConstraint([
    Sketcher.Constraint("Tangent", 4, 2, 5, 1),
    Sketcher.Constraint("Coincident", 5, 2, 6, 1),
    Sketcher.Constraint("Coincident", 6, 2, 7, 1),
    Sketcher.Constraint("Tangent", 7, 2, 8, 1),
    Sketcher.Constraint("Tangent", 8, 2, 9, 1),
    Sketcher.Constraint("Tangent", 9, 2, 10, 2),
    Sketcher.Constraint("Tangent", 10, 1, 11, 1),
    Sketcher.Constraint("Tangent", 11, 2, 12, 1),
    Sketcher.Constraint("Tangent", 12, 2, 13, 1),
    Sketcher.Constraint("Coincident", 13, 2, 14, 1),
    Sketcher.Constraint("Tangent", 14, 2, 15, 1),
    Sketcher.Constraint("Tangent", 15, 2, 16, 1),
    Sketcher.Constraint("Tangent", 16, 2, 17, 2),
    Sketcher.Constraint("Tangent", 17, 1, 18, 1),
    Sketcher.Constraint("Tangent", 18, 2, 19, 1),
    Sketcher.Constraint("Tangent", 19, 2, 20, 1),
    Sketcher.Constraint("Coincident", 20, 2, 21, 1),
    Sketcher.Constraint("Tangent", 21, 2, 22, 1),
    Sketcher.Constraint("Tangent", 22, 2, 23, 1),
    Sketcher.Constraint("Tangent", 23, 2, 24, 2),
    Sketcher.Constraint("Tangent", 24, 1, 25, 1),
    Sketcher.Constraint("Tangent", 25, 2, 4, 1),
    Sketcher.Constraint("Vertical", 0),
    Sketcher.Constraint("Horizontal", 1),
    Sketcher.Constraint("Vertical", 2),
    Sketcher.Constraint("Horizontal", 3),
    Sketcher.Constraint("Vertical", 5),
    Sketcher.Constraint("Horizontal", 6),
    Sketcher.Constraint("Vertical", 7),
    Sketcher.Constraint("Vertical", 13),
    Sketcher.Constraint("Horizontal", 14),
    Sketcher.Constraint("Horizontal", 20),
    Sketcher.Constraint("Vertical", 21),
    Sketcher.Constraint("Coincident", 15, 3, 12, 3),
    Sketcher.Constraint("Coincident", 22, 3, 19, 3),
    Sketcher.Constraint("Equal", 4, 8),
    Sketcher.Constraint("Equal", 8, 12),
    Sketcher.Constraint("Equal", 12, 15),
    Sketcher.Constraint("Equal", 10, 17),
    Sketcher.Constraint("Equal", 15, 19),
    Sketcher.Constraint("Equal", 19, 22),
    Sketcher.Constraint("Equal", 17, 24),
    Sketcher.Constraint("Symmetric", 4, 3, 12, 3, -1, 1),
    Sketcher.Constraint("Symmetric", 8, 3, 19, 3, -1, 1),
    Sketcher.Constraint("Symmetric", 10, 3, 24, 3, -1, 1),
    Sketcher.Constraint("Symmetric", 0, 2, 2, 2, -1, 1),
    Sketcher.Constraint("Symmetric", 4, 3, 8, 3, -2),
    Sketcher.Constraint("PointOnObject", 10, 3, -1),
    Sketcher.Constraint("PointOnObject", 17, 3, -2),
    Sketcher.Constraint("Perpendicular", 9, 11),
    Sketcher.Constraint("Parallel", 11, 16),
    Sketcher.Constraint("Equal", 3, 0),
    Sketcher.Constraint("Equal", 20, 5),
    Sketcher.Constraint("Equal", 11, 16),
    Sketcher.Constraint("Radius", 4, Q("7.5 mm")),
    Sketcher.Constraint("DistanceX", 6, 1, 6, 2, Q("80 mm")),
    Sketcher.Constraint("DistanceY", 8, 3, 9, 2, Q("25 mm")),
    Sketcher.Constraint("DistanceX", 1, 2, 1, 1, Q("114.984 mm")),
])
pocket11 = body.newObject("PartDesign::Pocket", "Pocket010")
pocket11.Profile = sketch20
pocket11.Length = 14
pocket11.Reversed = True

doc.recompute()
